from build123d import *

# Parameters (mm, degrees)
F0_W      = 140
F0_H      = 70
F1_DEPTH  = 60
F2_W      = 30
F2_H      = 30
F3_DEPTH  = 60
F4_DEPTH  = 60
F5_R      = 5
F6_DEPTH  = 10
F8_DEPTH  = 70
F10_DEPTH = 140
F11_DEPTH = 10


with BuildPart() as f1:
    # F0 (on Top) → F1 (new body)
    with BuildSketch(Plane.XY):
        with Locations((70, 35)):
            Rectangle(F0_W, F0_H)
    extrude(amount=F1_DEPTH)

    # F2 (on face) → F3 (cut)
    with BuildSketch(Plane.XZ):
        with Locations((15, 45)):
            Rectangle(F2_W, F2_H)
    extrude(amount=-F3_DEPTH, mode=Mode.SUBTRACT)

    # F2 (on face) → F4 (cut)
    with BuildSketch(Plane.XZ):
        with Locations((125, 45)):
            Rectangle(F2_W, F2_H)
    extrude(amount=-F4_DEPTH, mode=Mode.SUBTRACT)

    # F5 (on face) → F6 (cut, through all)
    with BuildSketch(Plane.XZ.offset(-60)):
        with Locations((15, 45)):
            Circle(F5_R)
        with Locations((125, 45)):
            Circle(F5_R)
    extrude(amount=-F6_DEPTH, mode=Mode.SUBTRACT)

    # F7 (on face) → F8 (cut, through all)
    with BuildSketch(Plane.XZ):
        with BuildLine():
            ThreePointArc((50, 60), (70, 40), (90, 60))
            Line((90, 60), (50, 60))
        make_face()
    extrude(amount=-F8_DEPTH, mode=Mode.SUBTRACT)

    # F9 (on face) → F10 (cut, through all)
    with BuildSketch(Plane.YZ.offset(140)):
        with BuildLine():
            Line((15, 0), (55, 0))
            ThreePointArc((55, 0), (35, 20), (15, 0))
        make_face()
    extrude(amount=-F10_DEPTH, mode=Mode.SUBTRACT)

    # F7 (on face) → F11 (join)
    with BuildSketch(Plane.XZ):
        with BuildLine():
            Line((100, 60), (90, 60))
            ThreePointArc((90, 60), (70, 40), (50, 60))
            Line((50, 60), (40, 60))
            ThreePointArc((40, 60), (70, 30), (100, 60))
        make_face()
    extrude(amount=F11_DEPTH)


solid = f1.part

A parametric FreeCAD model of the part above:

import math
import FreeCAD as App
import Part
import Sketcher

V = App.Vector
Q = App.Units.Quantity


def add_polygon(sketch, points):
    """Adds a closed chain of lines whose ends are joined by coincident constraints."""
    first, n = sketch.GeometryCount, len(points)
    for a, b in zip(points, points[1:] + points[:1]):
        sketch.addGeometry(Part.LineSegment(App.Vector(*a, 0), App.Vector(*b, 0)), False)
    for i in range(n):
        sketch.addConstraint(Sketcher.Constraint("Coincident", first + i, 2, first + (i + 1) % n, 1))

doc = App.newDocument("Part")
body = doc.addObject("PartDesign::Body", "Body")

sketch1 = body.newObject("Sketcher::SketchObject", "Sketch")
sketch1.AttachmentSupport = (doc.getObject("XY_Plane"), [""])
sketch1.MapMode = "FlatFace"
add_polygon(sketch1, [(0, 70), (0, 0), (140, 0), (140, 70)])
sketch1.addConstraint([
    Sketcher.Constraint("Vertical", 0),
    Sketcher.Constraint("Horizontal", 1),
    Sketcher.Constraint("Vertical", 2),
    Sketcher.Constraint("Horizontal", 3),
    Sketcher.Constraint("Coincident", 0, 2, -1, 1),
    Sketcher.Constraint("DistanceX", 1, 1, 1, 2, Q("140 mm")),
    Sketcher.Constraint("DistanceY", 0, 2, 0, 1, Q("70 mm")),
])
pad1 = body.newObject("PartDesign::Pad", "Pad")
pad1.Profile = sketch1
pad1.Length = 60

sketch2 = body.newObject("Sketcher::SketchObject", "Sketch001")
sketch2.AttachmentSupport = (doc.getObject("XZ_Plane"), [""])
sketch2.MapMode = "FlatFace"
add_polygon(sketch2, [(0, 60), (0, 30), (30, 30), (30, 60)])
sketch2.addConstraint([
    Sketcher.Constraint("Vertical", 0),
    Sketcher.Constraint("Horizontal", 1),
    Sketcher.Constraint("Vertical", 2),
    Sketcher.Constraint("Horizontal", 3),
    Sketcher.Constraint("PointOnObject", 0, 2, -2),
    Sketcher.Constraint("Equal", 3, 0),
    Sketcher.Constraint("DistanceX", 1, 1, 1, 2, Q("30 mm")),
    Sketcher.Constraint("DistanceY", -1, 1, 0, 2, Q("30 mm")),
])
pocket1 = body.newObject("PartDesign::Pocket", "Pocket")
pocket1.Profile = sketch2
pocket1.Length = 60

sketch3 = body.newObject("Sketcher::SketchObject", "Sketch002")
sketch3.AttachmentSupport = (doc.getObject("XZ_Plane"), [""])
sketch3.MapMode = "FlatFace"
add_polygon(sketch3, [(110, 60), (110, 30), (140, 30), (140, 60)])
sketch3.addConstraint([
    Sketcher.Constraint("Vertical", 0),
    Sketcher.Constraint("Horizontal", 1),
    Sketcher.Constraint("Vertical", 2),
    Sketcher.Constraint("Horizontal", 3),
    Sketcher.Constraint("Equal", 3, 0),
    Sketcher.Constraint("DistanceX", 1, 1, 1, 2, Q("30 mm")),
    Sketcher.Constraint("DistanceX", -1, 1, 0, 2, Q("110 mm")),
    Sketcher.Constraint("DistanceY", -1, 1, 0, 2, Q("30 mm")),
])
pocket2 = body.newObject("PartDesign::Pocket", "Pocket001")
pocket2.Profile = sketch3
pocket2.Length = 60

sketch4 = body.newObject("Sketcher::SketchObject", "Sketch003")
sketch4.AttachmentSupport = (doc.getObject("XZ_Plane"), [""])
sketch4.MapMode = "FlatFace"
sketch4.AttachmentOffset = App.Placement(V(0, 0, -60), App.Rotation())
sketch4.addGeometry([
    Part.Circle(V(15, 45, 0), V(0, 0, 1), 5),
    Part.Circle(V(125, 45, 0), V(0, 0, 1), 5),
], False)
sketch4.addConstraint([
    Sketcher.Constraint("Equal", 0, 1),
    Sketcher.Constraint("Horizontal", 0, 3, 1, 3),
    Sketcher.Constraint("Diameter", 0, Q("10 mm")),
    Sketcher.Constraint("DistanceX", -1, 1, 0, 3, Q("15 mm")),
    Sketcher.Constraint("DistanceY", -1, 1, 0, 3, Q("45 mm")),
    Sketcher.Constraint("DistanceX", -1, 1, 1, 3, Q("125 mm")),
])
pocket3 = body.newObject("PartDesign::Pocket", "Pocket002")
pocket3.Profile = sketch4
pocket3.Type = "ThroughAll"

sketch5 = body.newObject("Sketcher::SketchObject", "Sketch004")
sketch5.AttachmentSupport = (doc.getObject("XZ_Plane"), [""])
sketch5.MapMode = "FlatFace"
sketch5.addGeometry([
    Part.ArcOfCircle(Part.Circle(V(70, 60, 0), V(0, 0, 1), 20), math.radians(180), math.radians(360)),
    Part.LineSegment(V(90, 60, 0), V(50, 60, 0)),
], False)
sketch5.addConstraint([
    Sketcher.Constraint("Coincident", 0, 1, 1, 2),
    Sketcher.Constraint("Coincident", 1, 1, 0, 2),
    Sketcher.Constraint("Horizontal", 1),
    Sketcher.Constraint("Radius", 0, Q("20 mm")),
    Sketcher.Constraint("DistanceX", -1, 1, 0, 3, Q("70 mm")),
    Sketcher.Constraint("DistanceY", -1, 1, 0, 3, Q("60 mm")),
    Sketcher.Constraint("DistanceY", -1, 1, 0, 1, Q("60 mm")),
])
pocket4 = body.newObject("PartDesign::Pocket", "Pocket003")
pocket4.Profile = sketch5
pocket4.Type = "ThroughAll"

sketch6 = body.newObject("Sketcher::SketchObject", "Sketch005")
sketch6.AttachmentSupport = (doc.getObject("YZ_Plane"), [""])
sketch6.MapMode = "FlatFace"
sketch6.AttachmentOffset = App.Placement(V(0, 0, 140), App.Rotation())
sketch6.addGeometry([
    Part.LineSegment(V(15, 0, 0), V(55, 0, 0)),
    Part.ArcOfCircle(Part.Circle(V(35, 0, 0), V(0, 0, 1), 20), math.radians(0), math.radians(180)),
], False)
sketch6.addConstraint([
    Sketcher.Constraint("Coincident", 0, 1, 1, 2),
    Sketcher.Constraint("Coincident", 1, 1, 0, 2),
    Sketcher.Constraint("Horizontal", 0),
    Sketcher.Constraint("PointOnObject", 1, 3, -1),
    Sketcher.Constraint("PointOnObject", 0, 1, -1),
    Sketcher.Constraint("Radius", 1, Q("20 mm")),
    Sketcher.Constraint("DistanceX", -1, 1, 1, 3, Q("35 mm")),
])
pocket5 = body.newObject("PartDesign::Pocket", "Pocket004")
pocket5.Profile = sketch6
pocket5.Type = "ThroughAll"

sketch7 = body.newObject("Sketcher::SketchObject", "Sketch006")
sketch7.AttachmentSupport = (doc.getObject("XZ_Plane"), [""])
sketch7.MapMode = "FlatFace"
sketch7.addGeometry([
    Part.LineSegment(V(100, 60, 0), V(90, 60, 0)),
    Part.ArcOfCircle(Part.Circle(V(70, 60, 0), V(0, 0, 1), 20), math.radians(180), math.radians(360)),
    Part.LineSegment(V(50, 60, 0), V(40, 60, 0)),
    Part.ArcOfCircle(Part.Circle(V(70, 60, 0), V(0, 0, 1), 30), math.radians(180), math.radians(360)),
], False)
sketch7.addConstraint([
    Sketcher.Constraint("Coincident", 0, 2, 1, 2),
    Sketcher.Constraint("Coincident", 1, 1, 2, 1),
    Sketcher.Constraint("Coincident", 2, 2, 3, 1),
    Sketcher.Constraint("Coincident", 3, 2, 0, 1),
    Sketcher.Constraint("Horizontal", 0),
    Sketcher.Constraint("Horizontal", 2),
    Sketcher.Constraint("Coincident", 3, 3, 1, 3),
    Sketcher.Constraint("Horizontal", 3, 3, 0, 2),
    Sketcher.Constraint("Horizontal", 0, 2, 1, 1),
    Sketcher.Constraint("Radius", 1, Q("20 mm")),
    Sketcher.Constraint("Radius", 3, Q("30 mm")),
    Sketcher.Constraint("DistanceX", -1, 1, 1, 3, Q("70 mm")),
    Sketcher.Constraint("DistanceY", -1, 1, 1, 3, Q("60 mm")),
])
pad2 = body.newObject("PartDesign::Pad", "Pad001")
pad2.Profile = sketch7
pad2.Length = 10

doc.recompute()
